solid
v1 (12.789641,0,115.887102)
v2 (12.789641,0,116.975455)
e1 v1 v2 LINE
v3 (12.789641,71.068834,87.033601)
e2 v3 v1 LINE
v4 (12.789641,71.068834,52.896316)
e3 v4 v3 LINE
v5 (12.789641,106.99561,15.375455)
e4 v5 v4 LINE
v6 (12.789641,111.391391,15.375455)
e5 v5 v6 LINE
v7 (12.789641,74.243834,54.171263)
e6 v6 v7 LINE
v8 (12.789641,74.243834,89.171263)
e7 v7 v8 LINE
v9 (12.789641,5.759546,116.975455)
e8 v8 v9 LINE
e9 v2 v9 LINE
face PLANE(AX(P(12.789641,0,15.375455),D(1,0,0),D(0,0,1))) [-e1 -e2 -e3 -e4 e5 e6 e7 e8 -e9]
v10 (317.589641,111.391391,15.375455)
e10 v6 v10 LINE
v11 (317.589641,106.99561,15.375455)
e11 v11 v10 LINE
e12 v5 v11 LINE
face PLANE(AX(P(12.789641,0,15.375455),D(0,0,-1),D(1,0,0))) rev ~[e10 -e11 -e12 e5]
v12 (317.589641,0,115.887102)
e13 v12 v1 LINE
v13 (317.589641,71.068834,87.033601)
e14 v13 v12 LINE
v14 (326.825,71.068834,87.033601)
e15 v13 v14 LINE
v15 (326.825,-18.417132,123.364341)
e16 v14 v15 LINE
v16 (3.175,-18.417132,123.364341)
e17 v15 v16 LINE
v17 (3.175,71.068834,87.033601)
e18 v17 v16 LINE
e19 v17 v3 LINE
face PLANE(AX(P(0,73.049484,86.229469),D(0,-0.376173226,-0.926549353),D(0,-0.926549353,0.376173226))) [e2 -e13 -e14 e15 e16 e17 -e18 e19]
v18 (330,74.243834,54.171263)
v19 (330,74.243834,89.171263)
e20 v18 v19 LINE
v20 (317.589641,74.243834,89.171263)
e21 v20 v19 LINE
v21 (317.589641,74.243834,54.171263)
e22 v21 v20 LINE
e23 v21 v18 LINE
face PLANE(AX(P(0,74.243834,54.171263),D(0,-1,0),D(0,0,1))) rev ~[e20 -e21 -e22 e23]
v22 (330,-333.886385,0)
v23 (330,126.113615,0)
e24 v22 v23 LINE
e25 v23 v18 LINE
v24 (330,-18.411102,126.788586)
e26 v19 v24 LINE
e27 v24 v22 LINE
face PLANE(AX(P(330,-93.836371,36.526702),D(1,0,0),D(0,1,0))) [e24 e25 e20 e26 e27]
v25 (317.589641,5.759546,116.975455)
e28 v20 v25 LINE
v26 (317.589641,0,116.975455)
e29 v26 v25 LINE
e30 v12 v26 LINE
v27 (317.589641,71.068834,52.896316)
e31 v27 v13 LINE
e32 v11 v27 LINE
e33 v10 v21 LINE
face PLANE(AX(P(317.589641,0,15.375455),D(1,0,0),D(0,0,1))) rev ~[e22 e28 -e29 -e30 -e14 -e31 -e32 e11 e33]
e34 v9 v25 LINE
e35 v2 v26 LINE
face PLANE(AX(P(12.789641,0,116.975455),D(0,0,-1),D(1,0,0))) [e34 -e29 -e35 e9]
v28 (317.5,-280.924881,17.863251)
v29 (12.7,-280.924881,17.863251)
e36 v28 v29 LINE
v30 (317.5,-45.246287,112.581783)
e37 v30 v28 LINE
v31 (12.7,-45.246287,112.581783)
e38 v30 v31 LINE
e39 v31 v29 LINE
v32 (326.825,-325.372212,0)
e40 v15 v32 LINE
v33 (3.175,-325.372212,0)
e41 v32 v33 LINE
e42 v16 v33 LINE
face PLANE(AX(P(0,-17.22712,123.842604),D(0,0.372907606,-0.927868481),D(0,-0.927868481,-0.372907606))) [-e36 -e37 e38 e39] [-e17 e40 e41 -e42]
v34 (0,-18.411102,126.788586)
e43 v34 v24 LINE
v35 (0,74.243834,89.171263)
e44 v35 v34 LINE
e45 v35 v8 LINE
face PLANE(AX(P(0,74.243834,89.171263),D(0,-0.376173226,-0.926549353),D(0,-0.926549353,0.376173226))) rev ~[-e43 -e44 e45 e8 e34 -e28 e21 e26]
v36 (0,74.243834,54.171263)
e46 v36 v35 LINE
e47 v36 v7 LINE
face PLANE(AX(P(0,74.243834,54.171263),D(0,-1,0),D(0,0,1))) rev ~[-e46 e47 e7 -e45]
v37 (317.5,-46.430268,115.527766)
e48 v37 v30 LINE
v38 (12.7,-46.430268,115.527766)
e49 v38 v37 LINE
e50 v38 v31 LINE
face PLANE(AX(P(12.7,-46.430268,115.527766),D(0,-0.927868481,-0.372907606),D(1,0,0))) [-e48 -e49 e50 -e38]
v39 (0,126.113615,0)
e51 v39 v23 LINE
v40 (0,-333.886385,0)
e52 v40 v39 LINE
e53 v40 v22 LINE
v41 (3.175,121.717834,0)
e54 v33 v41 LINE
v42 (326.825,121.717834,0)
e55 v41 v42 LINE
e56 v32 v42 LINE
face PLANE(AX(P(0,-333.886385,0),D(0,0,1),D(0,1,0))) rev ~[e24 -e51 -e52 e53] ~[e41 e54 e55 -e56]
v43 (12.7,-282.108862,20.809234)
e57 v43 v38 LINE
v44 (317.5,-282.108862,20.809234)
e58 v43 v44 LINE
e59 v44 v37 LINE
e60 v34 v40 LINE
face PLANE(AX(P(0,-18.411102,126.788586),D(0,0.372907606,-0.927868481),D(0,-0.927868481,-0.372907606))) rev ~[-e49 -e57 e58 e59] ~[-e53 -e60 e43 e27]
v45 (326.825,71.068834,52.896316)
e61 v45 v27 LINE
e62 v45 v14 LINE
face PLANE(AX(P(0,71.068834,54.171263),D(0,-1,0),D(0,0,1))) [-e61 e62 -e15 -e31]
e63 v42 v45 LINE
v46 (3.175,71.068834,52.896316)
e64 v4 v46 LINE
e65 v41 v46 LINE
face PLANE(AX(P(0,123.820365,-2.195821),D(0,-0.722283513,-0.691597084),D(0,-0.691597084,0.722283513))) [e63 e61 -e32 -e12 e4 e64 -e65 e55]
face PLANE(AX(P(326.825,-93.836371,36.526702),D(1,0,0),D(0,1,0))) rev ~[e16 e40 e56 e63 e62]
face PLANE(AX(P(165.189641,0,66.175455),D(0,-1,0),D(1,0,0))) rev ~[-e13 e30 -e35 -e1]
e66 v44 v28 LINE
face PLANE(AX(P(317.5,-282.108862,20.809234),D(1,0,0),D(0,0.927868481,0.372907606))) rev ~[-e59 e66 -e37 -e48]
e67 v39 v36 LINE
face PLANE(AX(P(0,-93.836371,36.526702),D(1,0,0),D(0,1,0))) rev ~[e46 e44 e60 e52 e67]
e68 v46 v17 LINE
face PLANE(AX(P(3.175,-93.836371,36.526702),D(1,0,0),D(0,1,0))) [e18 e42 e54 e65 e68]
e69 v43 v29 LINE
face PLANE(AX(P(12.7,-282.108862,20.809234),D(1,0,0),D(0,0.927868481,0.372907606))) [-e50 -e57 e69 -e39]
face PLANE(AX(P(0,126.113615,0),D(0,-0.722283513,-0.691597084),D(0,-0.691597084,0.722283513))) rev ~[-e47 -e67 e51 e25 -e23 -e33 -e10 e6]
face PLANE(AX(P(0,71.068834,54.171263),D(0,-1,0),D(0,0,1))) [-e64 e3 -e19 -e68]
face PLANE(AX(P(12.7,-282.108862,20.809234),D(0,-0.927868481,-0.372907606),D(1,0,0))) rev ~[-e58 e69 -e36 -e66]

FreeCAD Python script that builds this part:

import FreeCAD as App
import Part
import Sketcher
from FreeCAD import Vector
Q = App.Units.Quantity


def faces_at(feature, points):
    """Names of the faces that lie closest to the given points."""
    faces = feature.Shape.Faces
    near = lambda p: min(range(len(faces)), key=lambda i: faces[i].distToShape(Part.Vertex(*p))[0])
    return sorted({f"Face{near(p) + 1}" for p in points})


def add_polygon(sketch, points):
    """Adds a closed chain of lines whose ends are joined by coincident constraints."""
    first, n = sketch.GeometryCount, len(points)
    for a, b in zip(points, points[1:] + points[:1]):
        sketch.addGeometry(Part.LineSegment(App.Vector(*a, 0), App.Vector(*b, 0)), False)
    for i in range(n):
        sketch.addConstraint(Sketcher.Constraint("Coincident", first + i, 2, first + (i + 1) % n, 1))

doc = App.newDocument("Part")
body = doc.addObject("PartDesign::Body", "Body")

# Sketch on YZ plane
sketch1 = body.newObject("Sketcher::SketchObject", "Sketch")
sketch1.AttachmentSupport = (doc.getObject("YZ_Plane"), [""])
sketch1.MapMode = "FlatFace"
add_polygon(sketch1, [(-18, 127), (-334, 0), (126, 0), (74, 54), (74, 89)])  # lines 0-4
sketch1.addConstraint([
    Sketcher.Constraint("Horizontal", 1),
    Sketcher.Constraint("Vertical", 3),
    Sketcher.Constraint("PointOnObject", 0, 2, -1),
    Sketcher.Constraint("DistanceX", 1, 1, 1, 2, Q("460 mm")),
    Sketcher.Constraint("DistanceY", 3, 1, 3, 2, Q("35 mm")),
    Sketcher.Constraint("Distance", 0, Q("340 mm")),
    Sketcher.Constraint("Distance", 2, Q("75 mm")),
    Sketcher.Constraint("Distance", 4, Q("100 mm")),
    Sketcher.Constraint("DistanceX", 4, 2, -1, 1, Q("18.411102 mm")),
    Sketcher.Constraint("DistanceX", 2, 2, 1, 2, Q("51.869781 mm")),
])
pad1 = body.newObject("PartDesign::Pad", "Pad")
pad1.Profile = sketch1
pad1.Length = 330
doc.recompute()

thickness = body.newObject("PartDesign::Thickness", "Thickness")
thickness.Base = (pad1, faces_at(pad1, [(165, -103.886, 0)]))
thickness.Value = 3.175
thickness.Reversed = True
thickness.Join = "Intersection"

# Sketch on XZ plane
sketch2 = body.newObject("Sketcher::SketchObject", "Sketch001")
sketch2.AttachmentSupport = (doc.getObject("XZ_Plane"), [""])
sketch2.MapMode = "FlatFace"
add_polygon(sketch2, [(13, 117), (13, 15), (318, 15), (318, 117)])  # lines 0-3
sketch2.addConstraint([
    Sketcher.Constraint("Vertical", 0),
    Sketcher.Constraint("Horizontal", 1),
    Sketcher.Constraint("Vertical", 2),
    Sketcher.Constraint("Horizontal", 3),
    Sketcher.Constraint("DistanceX", 1, 1, 1, 2, Q("304.8 mm")),
    Sketcher.Constraint("DistanceY", 0, 2, 0, 1, Q("101.6 mm")),
    Sketcher.Constraint("DistanceX", -1, 1, 0, 2, Q("12.789641 mm")),
    Sketcher.Constraint("DistanceY", -1, 1, 0, 2, Q("15.375455 mm")),
])
pocket1 = body.newObject("PartDesign::Pocket", "Pocket")
pocket1.Profile = sketch2
pocket1.Length = 254

# Sketch on an angled plane
sketch3 = body.newObject("Sketcher::SketchObject", "Sketch002")
sketch3.Placement = App.Placement(Vector(0, -46.430268, 115.527766), App.Rotation(Vector(1, 0, 0), Vector(0, 0.927868481, 0.372907606), Vector(0, -0.372907606, 0.927868481), "ZXY"))
add_polygon(sketch3, [(13, 0), (13, -254), (318, -254), (318, 0)])  # lines 0-3
sketch3.addConstraint([
    Sketcher.Constraint("Vertical", 0),
    Sketcher.Constraint("Horizontal", 1),
    Sketcher.Constraint("Vertical", 2),
    Sketcher.Constraint("Horizontal", 3),
    Sketcher.Constraint("PointOnObject", 2, 2, -1),
    Sketcher.Constraint("DistanceY", 0, 2, 0, 1, Q("254 mm")),
    Sketcher.Constraint("DistanceX", 1, 1, 1, 2, Q("304.8 mm")),
    Sketcher.Constraint("DistanceX", -1, 1, 0, 2, Q("12.7 mm")),
])
pocket2 = body.newObject("PartDesign::Pocket", "Pocket001")
pocket2.Profile = sketch3
pocket2.Length = 25.4

doc.recompute()
